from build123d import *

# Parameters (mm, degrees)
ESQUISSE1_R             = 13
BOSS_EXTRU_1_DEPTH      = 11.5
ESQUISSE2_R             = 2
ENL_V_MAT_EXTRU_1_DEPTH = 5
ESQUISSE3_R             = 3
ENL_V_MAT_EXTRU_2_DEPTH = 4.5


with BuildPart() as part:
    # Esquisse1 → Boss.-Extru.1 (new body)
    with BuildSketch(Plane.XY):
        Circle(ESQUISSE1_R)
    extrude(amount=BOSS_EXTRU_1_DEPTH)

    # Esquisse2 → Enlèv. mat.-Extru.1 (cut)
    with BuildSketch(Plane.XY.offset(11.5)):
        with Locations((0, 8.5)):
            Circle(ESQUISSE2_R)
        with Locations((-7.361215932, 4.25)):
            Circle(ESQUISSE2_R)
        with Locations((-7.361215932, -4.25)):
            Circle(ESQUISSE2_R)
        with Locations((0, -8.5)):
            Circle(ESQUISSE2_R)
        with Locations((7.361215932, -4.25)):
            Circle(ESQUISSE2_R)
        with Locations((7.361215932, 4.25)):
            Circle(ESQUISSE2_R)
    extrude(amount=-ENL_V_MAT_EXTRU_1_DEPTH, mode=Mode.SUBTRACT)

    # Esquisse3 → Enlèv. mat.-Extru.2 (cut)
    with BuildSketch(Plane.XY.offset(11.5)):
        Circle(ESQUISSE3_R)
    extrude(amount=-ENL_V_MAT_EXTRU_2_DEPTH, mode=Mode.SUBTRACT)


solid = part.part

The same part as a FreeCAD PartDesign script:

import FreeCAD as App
import Part
import Sketcher
from FreeCAD import Vector

doc = App.newDocument("Part")
body = doc.addObject("PartDesign::Body", "Body")

sketch1 = body.newObject("Sketcher::SketchObject", "Sketch")
sketch1.AttachmentSupport = (doc.getObject("XY_Plane"), [""])
sketch1.MapMode = "FlatFace"
sketch1.addGeometry(Part.Circle(Vector(0, 0, 0), Vector(0, 0, 1), 13), False)
sketch1.addConstraint([
    Sketcher.Constraint("Coincident", 0, 3, -1, 1),
    Sketcher.Constraint("Diameter", 0, 26.0),
])
pad1 = body.newObject("PartDesign::Pad", "Pad")
pad1.Profile = sketch1
pad1.Length = 11.5

sketch2 = body.newObject("Sketcher::SketchObject", "Sketch001")
sketch2.AttachmentSupport = (doc.getObject("XY_Plane"), [""])
sketch2.MapMode = "FlatFace"
sketch2.AttachmentOffset = App.Placement(Vector(0, 0, 11.5), App.Rotation())
sketch2.addGeometry([
    Part.Circle(Vector(0, 8.5, 0), Vector(0, 0, 1), 2),
    Part.Circle(Vector(-7.361216, 4.25, 0), Vector(0, 0, 1), 2),
    Part.Circle(Vector(-7.361216, -4.25, 0), Vector(0, 0, 1), 2),
    Part.Circle(Vector(0, -8.5, 0), Vector(0, 0, 1), 2),
    Part.Circle(Vector(7.361216, -4.25, 0), Vector(0, 0, 1), 2),
    Part.Circle(Vector(7.361216, 4.25, 0), Vector(0, 0, 1), 2),
], False)
sketch2.addConstraint([
    Sketcher.Constraint("Equal", 0, 1),
    Sketcher.Constraint("Equal", 1, 2),
    Sketcher.Constraint("Equal", 2, 3),
    Sketcher.Constraint("Equal", 3, 4),
    Sketcher.Constraint("Equal", 4, 5),
    Sketcher.Constraint("Symmetric", 0, 3, 3, 3, -1, 1),
    Sketcher.Constraint("Symmetric", 1, 3, 4, 3, -1, 1),
    Sketcher.Constraint("Symmetric", 2, 3, 5, 3, -1, 1),
    Sketcher.Constraint("Symmetric", 2, 3, 4, 3, -2),
    Sketcher.Constraint("PointOnObject", 0, 3, -2),
    Sketcher.Constraint("Diameter", 0, 4.0),
    Sketcher.Constraint("DistanceY", 3, 3, 0, 3, 17.0),
    Sketcher.Constraint("DistanceY", 2, 3, 1, 3, 8.5),
    Sketcher.Constraint("DistanceX", 2, 3, 4, 3, 14.722432),
])
pocket1 = body.newObject("PartDesign::Pocket", "Pocket")
pocket1.Profile = sketch2
pocket1.Length = 5

sketch3 = body.newObject("Sketcher::SketchObject", "Sketch002")
sketch3.AttachmentSupport = (doc.getObject("XY_Plane"), [""])
sketch3.MapMode = "FlatFace"
sketch3.AttachmentOffset = App.Placement(Vector(0, 0, 11.5), App.Rotation())
sketch3.addGeometry(Part.Circle(Vector(0, 0, 0), Vector(0, 0, 1), 3), False)
sketch3.addConstraint([
    Sketcher.Constraint("Coincident", 0, 3, -1, 1),
    Sketcher.Constraint("Diameter", 0, 6.0),
])
pocket2 = body.newObject("PartDesign::Pocket", "Pocket001")
pocket2.Profile = sketch3
pocket2.Length = 4.5

doc.recompute()
